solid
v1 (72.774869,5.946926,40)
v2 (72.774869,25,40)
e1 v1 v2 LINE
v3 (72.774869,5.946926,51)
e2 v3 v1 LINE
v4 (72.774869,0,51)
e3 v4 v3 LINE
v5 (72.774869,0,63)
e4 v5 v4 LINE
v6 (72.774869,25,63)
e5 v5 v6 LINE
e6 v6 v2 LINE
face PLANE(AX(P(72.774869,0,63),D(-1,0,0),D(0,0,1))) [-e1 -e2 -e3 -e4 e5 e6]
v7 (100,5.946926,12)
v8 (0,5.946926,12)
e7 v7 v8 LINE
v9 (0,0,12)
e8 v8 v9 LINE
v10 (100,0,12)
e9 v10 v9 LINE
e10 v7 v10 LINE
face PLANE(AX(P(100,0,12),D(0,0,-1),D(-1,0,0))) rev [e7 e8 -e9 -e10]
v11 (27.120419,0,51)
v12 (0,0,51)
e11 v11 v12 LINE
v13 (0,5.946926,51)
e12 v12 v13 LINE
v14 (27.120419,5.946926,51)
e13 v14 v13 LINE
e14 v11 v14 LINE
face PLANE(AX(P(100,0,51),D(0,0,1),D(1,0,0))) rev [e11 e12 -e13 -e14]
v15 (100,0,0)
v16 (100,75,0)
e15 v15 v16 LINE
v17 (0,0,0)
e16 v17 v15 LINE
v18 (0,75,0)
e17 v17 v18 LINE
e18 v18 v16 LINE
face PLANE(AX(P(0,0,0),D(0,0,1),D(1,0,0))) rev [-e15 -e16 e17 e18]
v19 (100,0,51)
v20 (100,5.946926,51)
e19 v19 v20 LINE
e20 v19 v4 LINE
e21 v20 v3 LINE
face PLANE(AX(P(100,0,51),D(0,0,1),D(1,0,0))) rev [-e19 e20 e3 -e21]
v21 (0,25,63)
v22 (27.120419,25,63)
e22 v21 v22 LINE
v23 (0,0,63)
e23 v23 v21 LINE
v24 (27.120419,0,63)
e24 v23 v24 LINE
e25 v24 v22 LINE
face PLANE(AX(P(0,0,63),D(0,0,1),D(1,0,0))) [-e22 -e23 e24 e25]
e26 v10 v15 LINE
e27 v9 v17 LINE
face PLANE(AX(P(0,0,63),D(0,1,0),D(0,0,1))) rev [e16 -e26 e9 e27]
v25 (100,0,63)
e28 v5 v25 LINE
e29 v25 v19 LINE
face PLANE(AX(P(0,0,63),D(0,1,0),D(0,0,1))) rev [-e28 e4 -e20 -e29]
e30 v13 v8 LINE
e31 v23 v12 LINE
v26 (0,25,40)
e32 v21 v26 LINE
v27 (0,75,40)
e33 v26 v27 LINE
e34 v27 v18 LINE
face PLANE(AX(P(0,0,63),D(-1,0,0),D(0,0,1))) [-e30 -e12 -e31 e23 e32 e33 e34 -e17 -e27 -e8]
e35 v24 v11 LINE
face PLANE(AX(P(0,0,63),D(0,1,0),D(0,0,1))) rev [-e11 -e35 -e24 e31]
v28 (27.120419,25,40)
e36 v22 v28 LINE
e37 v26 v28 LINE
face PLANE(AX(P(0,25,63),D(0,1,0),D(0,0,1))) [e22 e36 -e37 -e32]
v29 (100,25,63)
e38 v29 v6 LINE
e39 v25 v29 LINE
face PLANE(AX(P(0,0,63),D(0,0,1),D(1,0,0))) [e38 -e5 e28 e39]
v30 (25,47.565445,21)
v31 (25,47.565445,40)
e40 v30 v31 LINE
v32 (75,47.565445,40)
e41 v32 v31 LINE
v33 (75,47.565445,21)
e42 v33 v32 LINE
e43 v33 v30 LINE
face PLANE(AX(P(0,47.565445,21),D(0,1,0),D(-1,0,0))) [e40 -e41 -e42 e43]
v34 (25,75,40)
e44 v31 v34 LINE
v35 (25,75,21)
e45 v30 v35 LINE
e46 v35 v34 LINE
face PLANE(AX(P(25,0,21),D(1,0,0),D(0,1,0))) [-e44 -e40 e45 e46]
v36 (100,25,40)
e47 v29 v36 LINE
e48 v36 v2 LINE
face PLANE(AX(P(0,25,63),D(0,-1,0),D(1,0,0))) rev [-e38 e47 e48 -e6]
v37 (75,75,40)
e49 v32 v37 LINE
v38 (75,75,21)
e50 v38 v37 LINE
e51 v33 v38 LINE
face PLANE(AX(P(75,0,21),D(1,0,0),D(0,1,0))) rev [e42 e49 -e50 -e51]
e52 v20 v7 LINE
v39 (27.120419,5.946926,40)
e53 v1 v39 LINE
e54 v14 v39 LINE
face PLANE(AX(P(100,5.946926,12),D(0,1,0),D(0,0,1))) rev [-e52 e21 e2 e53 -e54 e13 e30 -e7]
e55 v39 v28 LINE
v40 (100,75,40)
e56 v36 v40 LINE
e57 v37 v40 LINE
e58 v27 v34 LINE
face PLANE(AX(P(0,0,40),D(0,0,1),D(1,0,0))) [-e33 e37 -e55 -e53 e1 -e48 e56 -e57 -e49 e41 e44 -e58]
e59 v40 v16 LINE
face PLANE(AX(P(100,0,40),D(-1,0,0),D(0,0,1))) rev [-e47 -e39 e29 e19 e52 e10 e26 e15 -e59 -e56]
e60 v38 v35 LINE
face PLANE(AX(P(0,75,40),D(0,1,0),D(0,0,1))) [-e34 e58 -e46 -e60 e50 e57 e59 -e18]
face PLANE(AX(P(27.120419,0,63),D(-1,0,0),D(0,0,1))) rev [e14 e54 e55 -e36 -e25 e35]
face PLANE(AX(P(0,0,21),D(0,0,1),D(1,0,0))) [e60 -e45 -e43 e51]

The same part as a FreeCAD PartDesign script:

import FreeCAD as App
import Part
import Sketcher

V = App.Vector
Q = App.Units.Quantity


def add_polygon(sketch, points):
    """Adds a closed chain of lines whose ends are joined by coincident constraints."""
    first, n = sketch.GeometryCount, len(points)
    for a, b in zip(points, points[1:] + points[:1]):
        sketch.addGeometry(Part.LineSegment(App.Vector(*a, 0), App.Vector(*b, 0)), False)
    for i in range(n):
        sketch.addConstraint(Sketcher.Constraint("Coincident", first + i, 2, first + (i + 1) % n, 1))

doc = App.newDocument("Part")
params = doc.addObject("Spreadsheet::Sheet", "Params")
for row, (alias, value) in enumerate([
    ("sketch1_height", "25 mm"),
    ("pad1_length", "63 mm"),
    ("sketch2_height", "25 mm"),
    ("pad2_length", "63 mm"),
    ("sketch3_width", "25 mm"),
    ("sketch3_width2", "50 mm"),
    ("pad3_length", "40 mm"),
    ("sketch4_width", "50 mm"),
    ("pad4_length", "40 mm"),
    ("sketch5_width", "50 mm"),
    ("pocket1_length", "19 mm"),
    ("sketch6_height", "39 mm"),
], start=1):
    params.set(f"A{row}", alias)
    params.set(f"B{row}", "=" + value)
    params.setAlias(f"B{row}", alias)

body = doc.addObject("PartDesign::Body", "Body")

sketch1 = body.newObject("Sketcher::SketchObject", "Sketch")
sketch1.AttachmentSupport = (doc.getObject("XY_Plane"), [""])
sketch1.MapMode = "FlatFace"
add_polygon(sketch1, [(0, 25), (0, 0), (27, 0), (27, 25)])
sketch1.addConstraint(Sketcher.Constraint("Vertical", 0))
sketch1.addConstraint(Sketcher.Constraint("Horizontal", 1))
sketch1.addConstraint(Sketcher.Constraint("Vertical", 2))
sketch1.addConstraint(Sketcher.Constraint("Horizontal", 3))
sketch1.addConstraint(Sketcher.Constraint("Coincident", 0, 2, -1, 1))
sketch1.addConstraint(Sketcher.Constraint("DistanceY", 0, 2, 0, 1, Q("25 mm")))
sketch1.addConstraint(Sketcher.Constraint("DistanceX", 1, 1, 1, 2, Q("27.120419 mm")))
sketch1.setExpression("Constraints[9]", "Params.sketch1_height")
pad1 = body.newObject("PartDesign::Pad", "Pad")
pad1.Profile = sketch1
pad1.setExpression("Length", "Params.pad1_length")
body2 = doc.addObject("PartDesign::Body", "Body001")

sketch2 = body2.newObject("Sketcher::SketchObject", "Sketch001")
sketch2.AttachmentSupport = (doc.getObject("XY_Plane001"), [""])
sketch2.MapMode = "FlatFace"
add_polygon(sketch2, [(73, 25), (73, 0), (100, 0), (100, 25)])
sketch2.addConstraint(Sketcher.Constraint("Vertical", 0))
sketch2.addConstraint(Sketcher.Constraint("Horizontal", 1))
sketch2.addConstraint(Sketcher.Constraint("Vertical", 2))
sketch2.addConstraint(Sketcher.Constraint("Horizontal", 3))
sketch2.addConstraint(Sketcher.Constraint("PointOnObject", 0, 2, -1))
sketch2.addConstraint(Sketcher.Constraint("DistanceY", 0, 2, 0, 1, Q("25 mm")))
sketch2.addConstraint(Sketcher.Constraint("DistanceX", -1, 1, 1, 2, Q("100 mm")))
sketch2.addConstraint(Sketcher.Constraint("DistanceX", 1, 1, 1, 2, Q("27.225131 mm")))
sketch2.setExpression("Constraints[9]", "Params.sketch2_height")
pad2 = body2.newObject("PartDesign::Pad", "Pad001")
pad2.Profile = sketch2
pad2.setExpression("Length", "Params.pad2_length")
body.AllowCompound = True
doc.recompute()

boolean = body.newObject("PartDesign::Boolean", "Boolean")
boolean.Type = "Fuse"
boolean.addObjects([body2])

sketch3 = body.newObject("Sketcher::SketchObject", "Sketch002")
sketch3.AttachmentSupport = (doc.getObject("XY_Plane"), [""])
sketch3.MapMode = "FlatFace"
add_polygon(sketch3, [(27, 25), (27, 0), (73, 0), (73, 25), (100, 25), (100, 75), (75, 75), (75, 48), (25, 48), (25, 75), (0, 75), (0, 25)])
sketch3.addConstraint(Sketcher.Constraint("Vertical", 0))
sketch3.addConstraint(Sketcher.Constraint("Horizontal", 1))
sketch3.addConstraint(Sketcher.Constraint("Vertical", 2))
sketch3.addConstraint(Sketcher.Constraint("Horizontal", 3))
sketch3.addConstraint(Sketcher.Constraint("Vertical", 4))
sketch3.addConstraint(Sketcher.Constraint("Horizontal", 5))
sketch3.addConstraint(Sketcher.Constraint("Vertical", 6))
sketch3.addConstraint(Sketcher.Constraint("Horizontal", 7))
sketch3.addConstraint(Sketcher.Constraint("Vertical", 8))
sketch3.addConstraint(Sketcher.Constraint("Horizontal", 9))
sketch3.addConstraint(Sketcher.Constraint("Vertical", 10))
sketch3.addConstraint(Sketcher.Constraint("Horizontal", 11))
sketch3.addConstraint(Sketcher.Constraint("PointOnObject", 0, 2, -1))
sketch3.addConstraint(Sketcher.Constraint("PointOnObject", 9, 2, -2))
sketch3.addConstraint(Sketcher.Constraint("Horizontal", 5, 2, 8, 2))
sketch3.addConstraint(Sketcher.Constraint("Horizontal", 3, 2, 10, 2))
sketch3.addConstraint(Sketcher.Constraint("Equal", 5, 9))
sketch3.addConstraint(Sketcher.Constraint("Equal", 9, 0))
sketch3.addConstraint(Sketcher.Constraint("Equal", 7, 4))
sketch3.addConstraint(Sketcher.Constraint("DistanceX", 5, 2, 5, 1, Q("25 mm")))
sketch3.addConstraint(Sketcher.Constraint("DistanceX", 7, 2, 7, 1, Q("50 mm")))
sketch3.addConstraint(Sketcher.Constraint("DistanceX", 1, 1, 1, 2, Q("45.65445 mm")))
sketch3.addConstraint(Sketcher.Constraint("DistanceX", 3, 1, 3, 2, Q("27.225131 mm")))
sketch3.addConstraint(Sketcher.Constraint("DistanceY", 6, 2, 6, 1, Q("27.434555 mm")))
sketch3.setExpression("Constraints[31]", "Params.sketch3_width")
sketch3.setExpression("Constraints[32]", "Params.sketch3_width2")
pad3 = body.newObject("PartDesign::Pad", "Pad002")
pad3.Profile = sketch3
pad3.setExpression("Length", "Params.pad3_length")

sketch4 = body.newObject("Sketcher::SketchObject", "Sketch003")
sketch4.AttachmentSupport = (doc.getObject("XY_Plane"), [""])
sketch4.MapMode = "FlatFace"
add_polygon(sketch4, [(25, 75), (25, 48), (75, 48), (75, 75)])
sketch4.addConstraint(Sketcher.Constraint("Vertical", 0))
sketch4.addConstraint(Sketcher.Constraint("Horizontal", 1))
sketch4.addConstraint(Sketcher.Constraint("Vertical", 2))
sketch4.addConstraint(Sketcher.Constraint("Horizontal", 3))
sketch4.addConstraint(Sketcher.Constraint("DistanceX", 1, 1, 1, 2, Q("50 mm")))
sketch4.addConstraint(Sketcher.Constraint("DistanceX", -1, 1, 0, 2, Q("25 mm")))
sketch4.addConstraint(Sketcher.Constraint("DistanceY", -1, 1, 2, 2, Q("75 mm")))
sketch4.addConstraint(Sketcher.Constraint("DistanceY", 0, 2, 0, 1, Q("27.434555 mm")))
sketch4.setExpression("Constraints[8]", "Params.sketch4_width")
pad4 = body.newObject("PartDesign::Pad", "Pad003")
pad4.Profile = sketch4
pad4.setExpression("Length", "Params.pad4_length")

sketch5 = body.newObject("Sketcher::SketchObject", "Sketch004")
sketch5.AttachmentSupport = (doc.getObject("XY_Plane"), [""])
sketch5.MapMode = "FlatFace"
sketch5.AttachmentOffset = App.Placement(V(0, 0, 40), App.Rotation())
add_polygon(sketch5, [(25, 75), (25, 48), (75, 48), (75, 75)])
sketch5.addConstraint(Sketcher.Constraint("Vertical", 0))
sketch5.addConstraint(Sketcher.Constraint("Horizontal", 1))
sketch5.addConstraint(Sketcher.Constraint("Vertical", 2))
sketch5.addConstraint(Sketcher.Constraint("Horizontal", 3))
sketch5.addConstraint(Sketcher.Constraint("DistanceX", 1, 1, 1, 2, Q("50 mm")))
sketch5.addConstraint(Sketcher.Constraint("DistanceX", -1, 1, 0, 2, Q("25 mm")))
sketch5.addConstraint(Sketcher.Constraint("DistanceY", -1, 1, 2, 2, Q("75 mm")))
sketch5.addConstraint(Sketcher.Constraint("DistanceY", 0, 2, 0, 1, Q("27.434555 mm")))
sketch5.setExpression("Constraints[8]", "Params.sketch5_width")
pocket1 = body.newObject("PartDesign::Pocket", "Pocket")
pocket1.Profile = sketch5
pocket1.setExpression("Length", "Params.pocket1_length")

sketch6 = body.newObject("Sketcher::SketchObject", "Sketch005")
sketch6.AttachmentSupport = (doc.getObject("YZ_Plane"), [""])
sketch6.MapMode = "FlatFace"
add_polygon(sketch6, [(6, 12), (0, 12), (0, 51), (6, 51)])
sketch6.addConstraint(Sketcher.Constraint("Horizontal", 0))
sketch6.addConstraint(Sketcher.Constraint("Vertical", 1))
sketch6.addConstraint(Sketcher.Constraint("Horizontal", 2))
sketch6.addConstraint(Sketcher.Constraint("Vertical", 3))
sketch6.addConstraint(Sketcher.Constraint("PointOnObject", 0, 2, -2))
sketch6.addConstraint(Sketcher.Constraint("DistanceY", 1, 1, 1, 2, Q("39 mm")))
sketch6.addConstraint(Sketcher.Constraint("DistanceY", -1, 1, 0, 2, Q("12 mm")))
sketch6.addConstraint(Sketcher.Constraint("DistanceX", 0, 2, 0, 1, Q("5.946926 mm")))
sketch6.setExpression("Constraints[9]", "Params.sketch6_height")
pocket2 = body.newObject("PartDesign::Pocket", "Pocket001")
pocket2.Profile = sketch6
pocket2.Type = "ThroughAll"
pocket2.Reversed = True

doc.recompute()
